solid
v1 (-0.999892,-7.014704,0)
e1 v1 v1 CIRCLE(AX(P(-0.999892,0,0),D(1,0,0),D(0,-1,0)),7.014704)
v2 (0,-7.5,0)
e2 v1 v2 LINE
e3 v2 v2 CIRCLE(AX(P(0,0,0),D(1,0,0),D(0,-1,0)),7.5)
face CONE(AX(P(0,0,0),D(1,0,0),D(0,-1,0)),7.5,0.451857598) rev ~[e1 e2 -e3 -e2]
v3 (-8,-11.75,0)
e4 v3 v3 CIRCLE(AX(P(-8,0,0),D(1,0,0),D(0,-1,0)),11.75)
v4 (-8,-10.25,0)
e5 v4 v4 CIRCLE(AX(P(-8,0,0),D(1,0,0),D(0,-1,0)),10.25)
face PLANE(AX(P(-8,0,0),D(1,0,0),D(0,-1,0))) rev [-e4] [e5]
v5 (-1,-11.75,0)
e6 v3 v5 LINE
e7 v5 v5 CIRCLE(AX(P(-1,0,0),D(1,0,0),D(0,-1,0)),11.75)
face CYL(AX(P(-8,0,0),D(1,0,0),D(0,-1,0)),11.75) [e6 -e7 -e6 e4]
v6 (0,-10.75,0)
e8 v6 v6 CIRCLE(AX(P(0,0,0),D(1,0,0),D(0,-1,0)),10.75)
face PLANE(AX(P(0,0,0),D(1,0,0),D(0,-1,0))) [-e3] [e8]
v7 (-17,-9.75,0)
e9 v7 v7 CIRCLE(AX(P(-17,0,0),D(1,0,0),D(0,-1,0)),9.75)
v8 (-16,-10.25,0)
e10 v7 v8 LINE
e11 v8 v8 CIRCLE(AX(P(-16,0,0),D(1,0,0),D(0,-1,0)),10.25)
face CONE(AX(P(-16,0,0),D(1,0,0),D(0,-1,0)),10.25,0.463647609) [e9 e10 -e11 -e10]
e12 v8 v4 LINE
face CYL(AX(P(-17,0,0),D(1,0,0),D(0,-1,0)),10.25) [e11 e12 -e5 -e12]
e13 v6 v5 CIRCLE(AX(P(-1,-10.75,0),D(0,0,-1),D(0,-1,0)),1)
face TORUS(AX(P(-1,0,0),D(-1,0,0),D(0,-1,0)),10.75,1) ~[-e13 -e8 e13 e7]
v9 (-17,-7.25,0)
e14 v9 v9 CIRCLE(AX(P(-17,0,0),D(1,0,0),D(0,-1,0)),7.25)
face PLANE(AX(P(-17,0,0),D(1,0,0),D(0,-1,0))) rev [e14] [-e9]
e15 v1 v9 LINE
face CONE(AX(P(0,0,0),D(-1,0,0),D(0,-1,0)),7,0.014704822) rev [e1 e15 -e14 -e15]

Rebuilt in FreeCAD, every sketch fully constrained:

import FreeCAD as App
import Part
import Sketcher

V = App.Vector
Q = App.Units.Quantity


def edges_at(feature, points):
    """Names of the edges that pass closest to the given points."""
    edges = feature.Shape.Edges
    near = lambda p: min(range(len(edges)), key=lambda i: edges[i].distToShape(Part.Vertex(*p))[0])
    return sorted({f"Edge{near(p) + 1}" for p in points})


def add_polygon(sketch, points):
    """Adds a closed chain of lines whose ends are joined by coincident constraints."""
    first, n = sketch.GeometryCount, len(points)
    for a, b in zip(points, points[1:] + points[:1]):
        sketch.addGeometry(Part.LineSegment(App.Vector(*a, 0), App.Vector(*b, 0)), False)
    for i in range(n):
        sketch.addConstraint(Sketcher.Constraint("Coincident", first + i, 2, first + (i + 1) % n, 1))

doc = App.newDocument("Part")
body = doc.addObject("PartDesign::Body", "Body")

sketch1 = doc.addObject("Sketcher::SketchObject", "Sketch")
body.addObject(sketch1)
sketch1.AttachmentSupport = (doc.XY_Plane, [""])
sketch1.MapMode = "FlatFace"
add_polygon(sketch1, [(0, -7), (-17, -7.2), (-17, -10.2), (-8, -10.2), (-8, -11.8), (0, -11.8)])
sketch1.addConstraint([
    Sketcher.Constraint("Vertical", 1),
    Sketcher.Constraint("Horizontal", 2),
    Sketcher.Constraint("Vertical", 3),
    Sketcher.Constraint("Horizontal", 4),
    Sketcher.Constraint("Vertical", 5),
    Sketcher.Constraint("PointOnObject", 4, 2, -2),
    Sketcher.Constraint("DistanceX", 2, 1, 2, 2, Q("9 mm")),
    Sketcher.Constraint("DistanceX", 4, 1, 4, 2, Q("8 mm")),
    Sketcher.Constraint("DistanceY", 1, 2, 1, 1, Q("3 mm")),
    Sketcher.Constraint("DistanceY", 3, 2, 3, 1, Q("1.5 mm")),
    Sketcher.Constraint("DistanceY", 5, 2, -1, 1, Q("7 mm")),
    Sketcher.Constraint("DistanceY", 5, 1, 5, 2, Q("4.75 mm")),
])
revolution = doc.addObject("PartDesign::Revolution", "Revolution")
body.addObject(revolution)
revolution.Profile = sketch1
revolution.ReferenceAxis = (sketch1, ["H_Axis"])
revolution.Angle = 360
doc.recompute()

chamfer = doc.addObject("PartDesign::Chamfer", "Chamfer")
body.addObject(chamfer)
chamfer.Base = (revolution, edges_at(revolution, [(-17, 10.25, 0)]))
chamfer.ChamferType = "Two distances"
chamfer.Size = 0.5
chamfer.Size2 = 1
doc.recompute()

chamfer2 = doc.addObject("PartDesign::Chamfer", "Chamfer001")
body.addObject(chamfer2)
chamfer2.Base = (chamfer, edges_at(chamfer, [(0, 7, 0)]))
chamfer2.ChamferType = "Two distances"
chamfer2.Size = 1
chamfer2.Size2 = 0.5
doc.recompute()

fillet = doc.addObject("PartDesign::Fillet", "Fillet")
body.addObject(fillet)
fillet.Base = (chamfer2, edges_at(chamfer2, [(0, 11.75, 0)]))
fillet.Radius = 1

doc.recompute()
